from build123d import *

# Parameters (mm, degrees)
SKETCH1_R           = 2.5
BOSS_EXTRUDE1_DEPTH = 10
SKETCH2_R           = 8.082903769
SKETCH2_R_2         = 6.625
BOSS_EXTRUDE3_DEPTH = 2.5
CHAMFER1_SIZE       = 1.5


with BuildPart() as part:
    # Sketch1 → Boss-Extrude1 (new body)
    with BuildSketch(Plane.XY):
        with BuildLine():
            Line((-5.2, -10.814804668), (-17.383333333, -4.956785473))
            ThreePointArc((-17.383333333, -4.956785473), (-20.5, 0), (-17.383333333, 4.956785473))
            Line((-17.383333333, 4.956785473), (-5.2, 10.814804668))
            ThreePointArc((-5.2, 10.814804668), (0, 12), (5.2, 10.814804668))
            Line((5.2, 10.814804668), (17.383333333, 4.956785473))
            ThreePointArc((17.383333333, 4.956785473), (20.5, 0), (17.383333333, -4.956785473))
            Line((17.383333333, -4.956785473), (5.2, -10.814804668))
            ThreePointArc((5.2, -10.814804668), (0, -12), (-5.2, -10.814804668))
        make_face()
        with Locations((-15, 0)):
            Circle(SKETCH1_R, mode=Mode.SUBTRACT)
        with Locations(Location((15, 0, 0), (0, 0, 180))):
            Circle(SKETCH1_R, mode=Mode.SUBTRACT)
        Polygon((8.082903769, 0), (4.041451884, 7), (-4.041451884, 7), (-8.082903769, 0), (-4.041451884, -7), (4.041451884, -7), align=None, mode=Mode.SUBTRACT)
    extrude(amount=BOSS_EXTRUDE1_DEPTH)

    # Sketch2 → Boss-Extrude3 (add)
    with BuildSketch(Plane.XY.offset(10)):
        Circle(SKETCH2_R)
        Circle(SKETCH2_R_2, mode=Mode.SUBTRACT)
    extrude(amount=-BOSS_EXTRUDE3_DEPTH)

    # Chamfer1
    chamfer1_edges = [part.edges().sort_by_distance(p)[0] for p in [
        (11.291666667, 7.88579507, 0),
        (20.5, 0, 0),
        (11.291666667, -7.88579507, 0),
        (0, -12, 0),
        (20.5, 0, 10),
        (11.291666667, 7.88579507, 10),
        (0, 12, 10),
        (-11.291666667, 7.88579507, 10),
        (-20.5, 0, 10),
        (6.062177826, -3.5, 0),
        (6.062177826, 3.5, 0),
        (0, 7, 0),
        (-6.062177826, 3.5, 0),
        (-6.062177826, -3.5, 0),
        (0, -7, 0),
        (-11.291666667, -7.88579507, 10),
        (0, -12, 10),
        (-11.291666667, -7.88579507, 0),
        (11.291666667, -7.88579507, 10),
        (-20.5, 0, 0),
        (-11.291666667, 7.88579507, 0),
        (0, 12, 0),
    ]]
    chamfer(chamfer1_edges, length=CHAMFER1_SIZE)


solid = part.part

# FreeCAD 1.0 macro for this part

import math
import FreeCAD as App
import Part
import Sketcher
Q = App.Units.Quantity


def edges_at(feature, points):
    """Names of the edges that pass closest to the given points."""
    edges = feature.Shape.Edges
    near = lambda p: min(range(len(edges)), key=lambda i: edges[i].distToShape(Part.Vertex(*p))[0])
    return sorted({f"Edge{near(p) + 1}" for p in points})

doc = App.newDocument("Part")
body = doc.addObject("PartDesign::Body", "Body")

sketch1 = body.newObject("Sketcher::SketchObject", "Sketch")
sketch1.AttachmentSupport = (doc.getObject("XY_Plane"), [""])
sketch1.MapMode = "FlatFace"
sketch1.addGeometry([
    Part.LineSegment(App.Vector(-17.383333, -4.956785, 0), App.Vector(-5.2, -10.814805, 0)),
    Part.ArcOfCircle(Part.Circle(App.Vector(0, 0, 0), App.Vector(0, 0, 1), 12), math.radians(-115.679289), math.radians(-64.320711)),
    Part.LineSegment(App.Vector(5.2, -10.814805, 0), App.Vector(17.383333, -4.956785, 0)),
    Part.ArcOfCircle(Part.Circle(App.Vector(15, 0, 0), App.Vector(0, 0, 1), 5.5), math.radians(-64.320711), math.radians(64.320711)),
    Part.LineSegment(App.Vector(17.383333, 4.956785, 0), App.Vector(5.2, 10.814805, 0)),
    Part.ArcOfCircle(Part.Circle(App.Vector(0, 0, 0), App.Vector(0, 0, 1), 12), math.radians(64.320711), math.radians(115.679289)),
    Part.LineSegment(App.Vector(-5.2, 10.814805, 0), App.Vector(-17.383333, 4.956785, 0)),
    Part.ArcOfCircle(Part.Circle(App.Vector(-15, 0, 0), App.Vector(0, 0, 1), 5.5), math.radians(115.679289), math.radians(244.320711)),
    Part.Circle(App.Vector(15, 0, 0), App.Vector(0, 0, 1), 2.5),
    Part.LineSegment(App.Vector(8.082904, 0, 0), App.Vector(4.041452, -7, 0)),
    Part.LineSegment(App.Vector(4.041452, -7, 0), App.Vector(-4.041452, -7, 0)),
    Part.LineSegment(App.Vector(-4.041452, -7, 0), App.Vector(-8.082904, 0, 0)),
    Part.LineSegment(App.Vector(-8.082904, 0, 0), App.Vector(-4.041452, 7, 0)),
    Part.LineSegment(App.Vector(-4.041452, 7, 0), App.Vector(4.041452, 7, 0)),
    Part.LineSegment(App.Vector(4.041452, 7, 0), App.Vector(8.082904, 0, 0)),
    Part.Circle(App.Vector(-15, 0, 0), App.Vector(0, 0, 1), 2.5),
], False)
sketch1.addConstraint([
    Sketcher.Constraint("Tangent", 0, 2, 1, 1),
    Sketcher.Constraint("Tangent", 1, 2, 2, 1),
    Sketcher.Constraint("Tangent", 2, 2, 3, 1),
    Sketcher.Constraint("Tangent", 3, 2, 4, 1),
    Sketcher.Constraint("Tangent", 4, 2, 5, 1),
    Sketcher.Constraint("Tangent", 5, 2, 6, 1),
    Sketcher.Constraint("Tangent", 6, 2, 7, 1),
    Sketcher.Constraint("Tangent", 7, 2, 0, 1),
    Sketcher.Constraint("Coincident", 9, 2, 10, 1),
    Sketcher.Constraint("Coincident", 10, 2, 11, 1),
    Sketcher.Constraint("Coincident", 11, 2, 12, 1),
    Sketcher.Constraint("Coincident", 12, 2, 13, 1),
    Sketcher.Constraint("Coincident", 13, 2, 14, 1),
    Sketcher.Constraint("Coincident", 14, 2, 9, 1),
    Sketcher.Constraint("Horizontal", 10),
    Sketcher.Constraint("Horizontal", 13),
    Sketcher.Constraint("Coincident", 1, 3, -1, 1),
    Sketcher.Constraint("Coincident", 5, 3, -1, 1),
    Sketcher.Constraint("Coincident", 8, 3, 3, 3),
    Sketcher.Constraint("Coincident", 15, 3, 7, 3),
    Sketcher.Constraint("Equal", 1, 5),
    Sketcher.Constraint("Equal", 3, 7),
    Sketcher.Constraint("Equal", 8, 15),
    Sketcher.Constraint("Symmetric", 3, 3, 7, 3, -1, 1),
    Sketcher.Constraint("Symmetric", 9, 2, 12, 2, -1, 1),
    Sketcher.Constraint("Symmetric", 11, 2, 14, 2, -1, 1),
    Sketcher.Constraint("PointOnObject", 3, 3, -1),
    Sketcher.Constraint("PointOnObject", 11, 2, -1),
    Sketcher.Constraint("Parallel", 11, 14),
    Sketcher.Constraint("Vertical", 10, 2, 12, 2),
    Sketcher.Constraint("Diameter", 8, Q("5 mm")),
    Sketcher.Constraint("Radius", 1, Q("12 mm")),
    Sketcher.Constraint("Radius", 3, Q("5.5 mm")),
    Sketcher.Constraint("Angle", 9, Q("-120 deg")),
    Sketcher.Constraint("DistanceX", -1, 1, 3, 3, Q("15 mm")),
    Sketcher.Constraint("DistanceY", 9, 2, -1, 1, Q("7 mm")),
    Sketcher.Constraint("DistanceX", 10, 2, 10, 1, Q("8.082904 mm")),
])
pad1 = body.newObject("PartDesign::Pad", "Pad")
pad1.Profile = sketch1
pad1.Length = 10

sketch2 = body.newObject("Sketcher::SketchObject", "Sketch001")
sketch2.AttachmentSupport = (doc.getObject("XY_Plane"), [""])
sketch2.MapMode = "FlatFace"
sketch2.AttachmentOffset = App.Placement(App.Vector(0, 0, 10), App.Rotation())
sketch2.addGeometry([
    Part.Circle(App.Vector(0, 0, 0), App.Vector(0, 0, 1), 8.082904),
    Part.Circle(App.Vector(0, 0, 0), App.Vector(0, 0, 1), 6.625),
], False)
sketch2.addConstraint([
    Sketcher.Constraint("Coincident", 0, 3, -1, 1),
    Sketcher.Constraint("Coincident", 1, 3, -1, 1),
    Sketcher.Constraint("Diameter", 1, Q("13.25 mm")),
    Sketcher.Constraint("Diameter", 0, Q("16.165808 mm")),
])
pad2 = body.newObject("PartDesign::Pad", "Pad001")
pad2.Profile = sketch2
pad2.Length = 2.5
pad2.Reversed = True
doc.recompute()

chamfer = body.newObject("PartDesign::Chamfer", "Chamfer")
chamfer.Base = (pad2, edges_at(pad2, [
    (11.292, 7.886, 0),
    (20.5, 0, 0),
    (11.292, -7.886, 0),
    (0, -12, 0),
    (20.5, 0, 10),
    (11.292, 7.886, 10),
    (0, 12, 10),
    (-11.292, 7.886, 10),
    (-20.5, 0, 10),
    (6.062, -3.5, 0),
    (6.062, 3.5, 0),
    (0, 7, 0),
    (-6.062, 3.5, 0),
    (-6.062, -3.5, 0),
    (0, -7, 0),
    (-11.292, -7.886, 10),
    (0, -12, 10),
    (-11.292, -7.886, 0),
    (11.292, -7.886, 10),
    (-20.5, 0, 0),
    (-11.292, 7.886, 0),
    (0, 12, 0),
]))
chamfer.Size = 1.5

doc.recompute()
